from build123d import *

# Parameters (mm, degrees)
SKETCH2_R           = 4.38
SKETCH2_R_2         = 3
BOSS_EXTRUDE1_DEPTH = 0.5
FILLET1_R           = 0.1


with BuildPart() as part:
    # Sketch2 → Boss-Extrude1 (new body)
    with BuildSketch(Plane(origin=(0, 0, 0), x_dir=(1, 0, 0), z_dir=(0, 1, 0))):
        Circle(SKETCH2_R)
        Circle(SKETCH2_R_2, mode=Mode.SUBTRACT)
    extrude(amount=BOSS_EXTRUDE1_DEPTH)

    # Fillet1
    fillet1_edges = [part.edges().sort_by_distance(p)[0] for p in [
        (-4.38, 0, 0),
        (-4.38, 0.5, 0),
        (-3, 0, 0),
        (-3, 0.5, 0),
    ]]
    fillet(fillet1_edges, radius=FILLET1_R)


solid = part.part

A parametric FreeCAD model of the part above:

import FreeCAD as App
import Part
import Sketcher
Q = App.Units.Quantity


def edges_at(feature, points):
    """Names of the edges that pass closest to the given points."""
    edges = feature.Shape.Edges
    near = lambda p: min(range(len(edges)), key=lambda i: edges[i].distToShape(Part.Vertex(*p))[0])
    return sorted({f"Edge{near(p) + 1}" for p in points})

doc = App.newDocument("Part")
body = doc.addObject("PartDesign::Body", "Body")

# Sketch on XZ plane
sketch1 = doc.addObject("Sketcher::SketchObject", "Sketch")
body.addObject(sketch1)
sketch1.AttachmentSupport = (doc.XZ_Plane, [""])
sketch1.MapMode = "FlatFace"
sketch1.addGeometry([
    Part.Circle(App.Vector(0, 0, 0), App.Vector(0, 0, 1), 4.4),
    Part.Circle(App.Vector(0, 0, 0), App.Vector(0, 0, 1), 3),
], False)
sketch1.addConstraint([
    Sketcher.Constraint("Coincident", 0, 3, -1, 1),
    Sketcher.Constraint("Coincident", 1, 3, -1, 1),
    Sketcher.Constraint("Diameter", 1, Q("6 mm")),
    Sketcher.Constraint("Diameter", 0, Q("8.76 mm")),
])
pad1 = doc.addObject("PartDesign::Pad", "Pad")
body.addObject(pad1)
pad1.Profile = sketch1
pad1.Length = 0.5
pad1.Reversed = True
doc.recompute()

fillet = doc.addObject("PartDesign::Fillet", "Fillet")
body.addObject(fillet)
fillet.Base = (pad1, edges_at(pad1, [
    (-4.38, 0, 0),
    (-4.38, 0.5, 0),
    (-3, 0, 0),
    (-3, 0.5, 0),
]))
fillet.Radius = 0.1

doc.recompute()
